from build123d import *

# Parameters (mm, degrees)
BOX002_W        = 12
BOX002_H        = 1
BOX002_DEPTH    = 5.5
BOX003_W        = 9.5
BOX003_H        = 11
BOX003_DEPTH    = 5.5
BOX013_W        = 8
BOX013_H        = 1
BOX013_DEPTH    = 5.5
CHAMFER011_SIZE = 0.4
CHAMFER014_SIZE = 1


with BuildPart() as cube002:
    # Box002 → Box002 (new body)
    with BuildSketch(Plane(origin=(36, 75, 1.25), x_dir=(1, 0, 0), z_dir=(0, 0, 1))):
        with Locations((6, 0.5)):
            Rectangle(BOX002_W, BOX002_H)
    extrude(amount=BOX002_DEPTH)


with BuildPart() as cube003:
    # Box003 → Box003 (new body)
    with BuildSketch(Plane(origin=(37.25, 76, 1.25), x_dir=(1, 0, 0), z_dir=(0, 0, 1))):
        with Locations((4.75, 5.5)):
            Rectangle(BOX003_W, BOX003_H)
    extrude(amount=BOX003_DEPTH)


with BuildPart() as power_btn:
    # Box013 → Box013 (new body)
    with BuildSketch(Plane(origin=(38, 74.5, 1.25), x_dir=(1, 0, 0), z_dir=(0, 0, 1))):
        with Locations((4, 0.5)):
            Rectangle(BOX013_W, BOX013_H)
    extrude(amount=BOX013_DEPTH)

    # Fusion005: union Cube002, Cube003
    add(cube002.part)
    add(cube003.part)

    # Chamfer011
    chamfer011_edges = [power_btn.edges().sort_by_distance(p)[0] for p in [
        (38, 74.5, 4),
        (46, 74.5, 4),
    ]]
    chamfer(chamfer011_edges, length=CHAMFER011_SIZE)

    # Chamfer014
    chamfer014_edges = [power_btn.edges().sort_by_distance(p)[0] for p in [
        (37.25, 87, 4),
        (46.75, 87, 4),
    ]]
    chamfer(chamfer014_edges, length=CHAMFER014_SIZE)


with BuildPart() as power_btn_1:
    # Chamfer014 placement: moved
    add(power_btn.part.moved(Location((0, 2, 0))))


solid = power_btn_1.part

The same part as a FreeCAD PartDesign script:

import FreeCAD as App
import Part
import Sketcher


def edges_at(feature, points):
    """Names of the edges that pass closest to the given points."""
    edges = feature.Shape.Edges
    near = lambda p: min(range(len(edges)), key=lambda i: edges[i].distToShape(Part.Vertex(*p))[0])
    return sorted({f"Edge{near(p) + 1}" for p in points})


def add_polygon(sketch, points):
    """Adds a closed chain of lines whose ends are joined by coincident constraints."""
    first, n = sketch.GeometryCount, len(points)
    for a, b in zip(points, points[1:] + points[:1]):
        sketch.addGeometry(Part.LineSegment(App.Vector(*a, 0), App.Vector(*b, 0)), False)
    for i in range(n):
        sketch.addConstraint(Sketcher.Constraint("Coincident", first + i, 2, first + (i + 1) % n, 1))

doc = App.newDocument("Part")
params = doc.addObject("Spreadsheet::Sheet", "Params")
for row, (alias, value) in enumerate([
    ("sketch1_width", "12 mm"),
    ("sketch1_height", "1 mm"),
    ("pad1_length", "5.5 mm"),
    ("sketch2_height", "11 mm"),
    ("sketch2_width", "9.5 mm"),
    ("pad2_length", "5.5 mm"),
    ("sketch3_width", "8 mm"),
    ("sketch3_height", "1 mm"),
    ("pad3_length", "5.5 mm"),
    ("chamfer_size", "0.4 mm"),
    ("chamfer2_size", "1 mm"),
], start=1):
    params.set(f"A{row}", alias)
    params.set(f"B{row}", "=" + value)
    params.setAlias(f"B{row}", alias)

body = doc.addObject("PartDesign::Body", "Body")

sketch1 = body.newObject("Sketcher::SketchObject", "Sketch")
sketch1.AttachmentSupport = (doc.getObject("XY_Plane"), [""])
sketch1.MapMode = "FlatFace"
sketch1.AttachmentOffset = App.Placement(App.Vector(0, 0, 1.25), App.Rotation())
add_polygon(sketch1, [(36, 76), (36, 75), (48, 75), (48, 76)])
sketch1.addConstraint(Sketcher.Constraint("Vertical", 0))
sketch1.addConstraint(Sketcher.Constraint("Horizontal", 1))
sketch1.addConstraint(Sketcher.Constraint("Vertical", 2))
sketch1.addConstraint(Sketcher.Constraint("Horizontal", 3))
sketch1.addConstraint(Sketcher.Constraint("DistanceX", 1, 1, 1, 2, 12.0))
sketch1.addConstraint(Sketcher.Constraint("DistanceY", 0, 2, 0, 1, 1.0))
sketch1.addConstraint(Sketcher.Constraint("DistanceX", -1, 1, 0, 2, 36.0))
sketch1.addConstraint(Sketcher.Constraint("DistanceY", -1, 1, 0, 2, 75.0))
sketch1.setExpression("Constraints[8]", "Params.sketch1_width")
sketch1.setExpression("Constraints[9]", "Params.sketch1_height")
pad1 = body.newObject("PartDesign::Pad", "Pad")
pad1.Profile = sketch1
pad1.setExpression("Length", "Params.pad1_length")
body2 = doc.addObject("PartDesign::Body", "Body001")

sketch2 = body2.newObject("Sketcher::SketchObject", "Sketch001")
sketch2.AttachmentSupport = (doc.getObject("XY_Plane001"), [""])
sketch2.MapMode = "FlatFace"
sketch2.AttachmentOffset = App.Placement(App.Vector(0, 0, 1.25), App.Rotation())
add_polygon(sketch2, [(37, 87), (37, 76), (47, 76), (47, 87)])
sketch2.addConstraint(Sketcher.Constraint("Vertical", 0))
sketch2.addConstraint(Sketcher.Constraint("Horizontal", 1))
sketch2.addConstraint(Sketcher.Constraint("Vertical", 2))
sketch2.addConstraint(Sketcher.Constraint("Horizontal", 3))
sketch2.addConstraint(Sketcher.Constraint("DistanceY", 0, 2, 0, 1, 11.0))
sketch2.addConstraint(Sketcher.Constraint("DistanceX", 1, 1, 1, 2, 9.5))
sketch2.addConstraint(Sketcher.Constraint("DistanceY", -1, 1, 0, 2, 76.0))
sketch2.addConstraint(Sketcher.Constraint("DistanceX", -1, 1, 0, 2, 37.25))
sketch2.setExpression("Constraints[8]", "Params.sketch2_height")
sketch2.setExpression("Constraints[9]", "Params.sketch2_width")
pad2 = body2.newObject("PartDesign::Pad", "Pad001")
pad2.Profile = sketch2
pad2.setExpression("Length", "Params.pad2_length")
body3 = doc.addObject("PartDesign::Body", "Body002")

sketch3 = body3.newObject("Sketcher::SketchObject", "Sketch002")
sketch3.AttachmentSupport = (doc.getObject("XY_Plane002"), [""])
sketch3.MapMode = "FlatFace"
sketch3.AttachmentOffset = App.Placement(App.Vector(0, 0, 1.25), App.Rotation())
add_polygon(sketch3, [(38, 75.5), (38, 74.5), (46, 74.5), (46, 75.5)])
sketch3.addConstraint(Sketcher.Constraint("Vertical", 0))
sketch3.addConstraint(Sketcher.Constraint("Horizontal", 1))
sketch3.addConstraint(Sketcher.Constraint("Vertical", 2))
sketch3.addConstraint(Sketcher.Constraint("Horizontal", 3))
sketch3.addConstraint(Sketcher.Constraint("DistanceX", 1, 1, 1, 2, 8.0))
sketch3.addConstraint(Sketcher.Constraint("DistanceY", 0, 2, 0, 1, 1.0))
sketch3.addConstraint(Sketcher.Constraint("DistanceX", -1, 1, 0, 2, 38.0))
sketch3.addConstraint(Sketcher.Constraint("DistanceY", -1, 1, 0, 2, 74.5))
sketch3.setExpression("Constraints[8]", "Params.sketch3_width")
sketch3.setExpression("Constraints[9]", "Params.sketch3_height")
pad3 = body3.newObject("PartDesign::Pad", "Pad002")
pad3.Profile = sketch3
pad3.setExpression("Length", "Params.pad3_length")
doc.recompute()

boolean = body3.newObject("PartDesign::Boolean", "Boolean")
boolean.Type = "Fuse"
boolean.addObjects([body])
doc.recompute()

boolean2 = body3.newObject("PartDesign::Boolean", "Boolean001")
boolean2.Type = "Fuse"
boolean2.addObjects([body2])
doc.recompute()

chamfer = body3.newObject("PartDesign::Chamfer", "Chamfer")
chamfer.Base = (boolean2, edges_at(boolean2, [(38, 74.5, 4), (46, 74.5, 4)]))
chamfer.setExpression("Size", "Params.chamfer_size")
doc.recompute()

chamfer2 = body3.newObject("PartDesign::Chamfer", "Chamfer001")
chamfer2.Base = (chamfer, edges_at(chamfer, [(37.25, 87, 4), (46.75, 87, 4)]))
chamfer2.setExpression("Size", "Params.chamfer2_size")
body4 = doc.addObject("PartDesign::Body", "Body003")
doc.recompute()

body3.Placement = App.Placement(App.Vector(0, 2, 0), App.Rotation(App.Vector(0, 0, 1), 0))
boolean3 = body4.newObject("PartDesign::Boolean", "Boolean002")
boolean3.Type = "Fuse"
boolean3.addObjects([body3])

doc.recompute()
